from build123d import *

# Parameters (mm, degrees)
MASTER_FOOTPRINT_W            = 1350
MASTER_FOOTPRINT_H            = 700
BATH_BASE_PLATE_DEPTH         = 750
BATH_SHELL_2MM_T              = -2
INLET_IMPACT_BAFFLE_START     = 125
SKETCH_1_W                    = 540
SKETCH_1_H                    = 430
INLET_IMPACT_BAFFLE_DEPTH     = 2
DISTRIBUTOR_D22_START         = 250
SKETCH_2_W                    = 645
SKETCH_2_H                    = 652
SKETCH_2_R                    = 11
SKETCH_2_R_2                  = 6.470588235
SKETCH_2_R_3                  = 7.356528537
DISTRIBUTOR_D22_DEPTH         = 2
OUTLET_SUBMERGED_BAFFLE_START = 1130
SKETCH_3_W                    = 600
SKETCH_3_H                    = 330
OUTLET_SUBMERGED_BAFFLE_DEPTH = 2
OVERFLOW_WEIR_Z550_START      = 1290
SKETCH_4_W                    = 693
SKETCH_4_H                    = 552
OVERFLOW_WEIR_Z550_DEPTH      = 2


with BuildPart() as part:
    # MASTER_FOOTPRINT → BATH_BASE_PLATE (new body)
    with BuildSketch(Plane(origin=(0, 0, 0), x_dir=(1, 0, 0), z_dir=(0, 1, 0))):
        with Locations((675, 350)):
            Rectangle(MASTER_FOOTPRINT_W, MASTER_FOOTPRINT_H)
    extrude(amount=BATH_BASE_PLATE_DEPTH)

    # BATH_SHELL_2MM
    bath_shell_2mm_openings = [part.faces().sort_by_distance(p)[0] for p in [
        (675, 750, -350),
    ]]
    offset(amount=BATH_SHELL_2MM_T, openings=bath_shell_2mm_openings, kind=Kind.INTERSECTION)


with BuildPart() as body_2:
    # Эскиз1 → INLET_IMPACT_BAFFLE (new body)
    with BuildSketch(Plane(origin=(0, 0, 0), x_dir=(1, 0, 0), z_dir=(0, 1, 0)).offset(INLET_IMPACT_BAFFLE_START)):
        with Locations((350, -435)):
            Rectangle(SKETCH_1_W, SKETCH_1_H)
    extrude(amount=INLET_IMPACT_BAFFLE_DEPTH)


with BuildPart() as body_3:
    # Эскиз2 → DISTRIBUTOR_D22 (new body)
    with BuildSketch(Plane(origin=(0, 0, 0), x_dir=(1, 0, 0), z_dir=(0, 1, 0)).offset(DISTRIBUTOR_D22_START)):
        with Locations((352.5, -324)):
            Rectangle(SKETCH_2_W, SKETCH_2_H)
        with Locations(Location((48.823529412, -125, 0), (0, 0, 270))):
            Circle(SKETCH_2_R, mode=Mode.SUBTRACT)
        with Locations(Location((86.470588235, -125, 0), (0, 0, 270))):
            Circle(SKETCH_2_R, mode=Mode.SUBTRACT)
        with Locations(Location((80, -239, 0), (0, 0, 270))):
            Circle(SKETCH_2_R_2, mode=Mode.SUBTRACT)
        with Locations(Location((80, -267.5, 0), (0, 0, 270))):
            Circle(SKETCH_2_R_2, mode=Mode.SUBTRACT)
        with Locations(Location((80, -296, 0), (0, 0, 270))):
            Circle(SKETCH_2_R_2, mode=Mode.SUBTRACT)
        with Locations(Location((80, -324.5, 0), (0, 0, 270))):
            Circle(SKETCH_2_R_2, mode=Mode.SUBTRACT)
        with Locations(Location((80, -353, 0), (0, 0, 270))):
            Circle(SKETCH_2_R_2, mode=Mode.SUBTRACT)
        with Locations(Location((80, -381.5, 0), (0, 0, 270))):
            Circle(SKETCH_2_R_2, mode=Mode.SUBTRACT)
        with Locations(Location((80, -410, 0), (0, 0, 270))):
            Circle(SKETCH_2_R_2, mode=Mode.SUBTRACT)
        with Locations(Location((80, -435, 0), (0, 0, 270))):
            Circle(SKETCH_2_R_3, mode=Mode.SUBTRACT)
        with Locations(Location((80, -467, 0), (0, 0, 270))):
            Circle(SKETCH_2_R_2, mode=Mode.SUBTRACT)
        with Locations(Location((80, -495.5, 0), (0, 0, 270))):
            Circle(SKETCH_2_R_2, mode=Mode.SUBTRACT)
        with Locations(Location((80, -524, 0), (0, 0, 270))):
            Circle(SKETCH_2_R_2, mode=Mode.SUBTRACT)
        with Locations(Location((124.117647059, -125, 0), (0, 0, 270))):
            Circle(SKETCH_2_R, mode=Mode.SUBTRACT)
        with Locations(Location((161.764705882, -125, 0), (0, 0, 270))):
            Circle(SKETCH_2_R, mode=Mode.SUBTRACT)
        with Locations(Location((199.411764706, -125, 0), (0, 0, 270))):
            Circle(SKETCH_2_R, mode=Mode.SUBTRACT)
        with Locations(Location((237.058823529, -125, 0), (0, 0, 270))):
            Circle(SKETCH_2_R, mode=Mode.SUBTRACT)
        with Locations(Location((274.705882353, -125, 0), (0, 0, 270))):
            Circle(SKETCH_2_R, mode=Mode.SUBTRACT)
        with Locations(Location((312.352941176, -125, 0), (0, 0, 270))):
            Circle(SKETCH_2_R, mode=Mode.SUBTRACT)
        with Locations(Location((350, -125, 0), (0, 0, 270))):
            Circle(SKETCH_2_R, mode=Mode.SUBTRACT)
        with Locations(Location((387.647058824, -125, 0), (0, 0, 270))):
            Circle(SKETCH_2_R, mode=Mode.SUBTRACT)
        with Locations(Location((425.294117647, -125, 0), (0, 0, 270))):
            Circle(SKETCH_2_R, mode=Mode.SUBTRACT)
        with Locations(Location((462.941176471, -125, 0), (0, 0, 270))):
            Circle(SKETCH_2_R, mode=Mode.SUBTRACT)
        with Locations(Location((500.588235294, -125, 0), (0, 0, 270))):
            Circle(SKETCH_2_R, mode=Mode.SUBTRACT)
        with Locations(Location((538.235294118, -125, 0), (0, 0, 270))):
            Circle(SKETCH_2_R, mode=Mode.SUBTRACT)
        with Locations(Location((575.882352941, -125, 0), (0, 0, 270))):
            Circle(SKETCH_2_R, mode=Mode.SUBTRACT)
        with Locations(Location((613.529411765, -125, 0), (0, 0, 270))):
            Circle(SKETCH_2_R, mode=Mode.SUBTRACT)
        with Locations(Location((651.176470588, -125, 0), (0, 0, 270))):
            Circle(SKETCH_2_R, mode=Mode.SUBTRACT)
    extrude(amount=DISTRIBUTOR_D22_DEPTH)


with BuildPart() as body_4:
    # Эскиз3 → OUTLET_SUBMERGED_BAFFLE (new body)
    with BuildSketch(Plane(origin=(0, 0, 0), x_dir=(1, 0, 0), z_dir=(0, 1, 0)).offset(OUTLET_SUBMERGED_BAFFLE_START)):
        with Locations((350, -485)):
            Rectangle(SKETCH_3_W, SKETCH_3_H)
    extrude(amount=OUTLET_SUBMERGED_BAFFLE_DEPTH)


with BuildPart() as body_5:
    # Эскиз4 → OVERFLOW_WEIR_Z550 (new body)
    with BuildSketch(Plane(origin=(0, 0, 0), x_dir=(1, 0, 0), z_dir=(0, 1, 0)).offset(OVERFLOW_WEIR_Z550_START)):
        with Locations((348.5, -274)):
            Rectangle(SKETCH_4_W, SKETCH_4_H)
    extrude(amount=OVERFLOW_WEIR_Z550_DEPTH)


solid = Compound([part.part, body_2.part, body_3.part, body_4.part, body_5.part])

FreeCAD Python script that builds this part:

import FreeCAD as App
import Part
import Sketcher


def faces_at(feature, points):
    """Names of the faces that lie closest to the given points."""
    faces = feature.Shape.Faces
    near = lambda p: min(range(len(faces)), key=lambda i: faces[i].distToShape(Part.Vertex(*p))[0])
    return sorted({f"Face{near(p) + 1}" for p in points})

doc = App.newDocument("Part")
body = doc.addObject("PartDesign::Body", "Body")

sketch1 = body.newObject("Sketcher::SketchObject", "Sketch")
sketch1.AttachmentSupport = (doc.getObject("XZ_Plane"), [""])
sketch1.MapMode = "FlatFace"
sketch1.addGeometry([
    Part.LineSegment(App.Vector(0, -700, 0), App.Vector(0, 0, 0)),
    Part.LineSegment(App.Vector(0, 0, 0), App.Vector(1350, 0, 0)),
    Part.LineSegment(App.Vector(1350, 0, 0), App.Vector(1350, -700, 0)),
    Part.LineSegment(App.Vector(1350, -700, 0), App.Vector(0, -700, 0)),
], False)
sketch1.addConstraint([
    Sketcher.Constraint("Coincident", 0, 2, 1, 1),
    Sketcher.Constraint("Coincident", 1, 2, 2, 1),
    Sketcher.Constraint("Coincident", 2, 2, 3, 1),
    Sketcher.Constraint("Coincident", 3, 2, 0, 1),
    Sketcher.Constraint("Vertical", 0),
    Sketcher.Constraint("Horizontal", 1),
    Sketcher.Constraint("Vertical", 2),
    Sketcher.Constraint("Horizontal", 3),
    Sketcher.Constraint("Coincident", 0, 2, -1, 1),
    Sketcher.Constraint("DistanceX", 1, 1, 1, 2, 1350.0),
    Sketcher.Constraint("DistanceY", 0, 1, 0, 2, 700.0),
])
pad1 = body.newObject("PartDesign::Pad", "Pad")
pad1.Profile = sketch1
pad1.Length = 750
pad1.Reversed = True
doc.recompute()

thickness = body.newObject("PartDesign::Thickness", "Thickness")
thickness.Base = (pad1, faces_at(pad1, [(675, 750, -350)]))
thickness.Value = 2
thickness.Reversed = True
thickness.Join = "Intersection"
body2 = doc.addObject("PartDesign::Body", "Body001")

sketch2 = body2.newObject("Sketcher::SketchObject", "Sketch001")
sketch2.AttachmentSupport = (doc.getObject("XZ_Plane001"), [""])
sketch2.MapMode = "FlatFace"
sketch2.AttachmentOffset = App.Placement(App.Vector(0, 0, -125), App.Rotation())
sketch2.addGeometry([
    Part.LineSegment(App.Vector(80, 220, 0), App.Vector(80, 650, 0)),
    Part.LineSegment(App.Vector(80, 650, 0), App.Vector(620, 650, 0)),
    Part.LineSegment(App.Vector(620, 650, 0), App.Vector(620, 220, 0)),
    Part.LineSegment(App.Vector(620, 220, 0), App.Vector(80, 220, 0)),
], False)
sketch2.addConstraint([
    Sketcher.Constraint("Coincident", 0, 2, 1, 1),
    Sketcher.Constraint("Coincident", 1, 2, 2, 1),
    Sketcher.Constraint("Coincident", 2, 2, 3, 1),
    Sketcher.Constraint("Coincident", 3, 2, 0, 1),
    Sketcher.Constraint("Vertical", 0),
    Sketcher.Constraint("Horizontal", 1),
    Sketcher.Constraint("Vertical", 2),
    Sketcher.Constraint("Horizontal", 3),
    Sketcher.Constraint("DistanceX", 1, 1, 1, 2, 540.0),
    Sketcher.Constraint("DistanceY", 0, 1, 0, 2, 430.0),
    Sketcher.Constraint("DistanceX", -1, 1, 0, 2, 80.0),
    Sketcher.Constraint("DistanceY", -1, 1, 0, 2, 650.0),
])
pad2 = body2.newObject("PartDesign::Pad", "Pad001")
pad2.Profile = sketch2
pad2.Length = 2
pad2.Reversed = True
body3 = doc.addObject("PartDesign::Body", "Body002")

sketch3 = body3.newObject("Sketcher::SketchObject", "Sketch002")
sketch3.AttachmentSupport = (doc.getObject("XZ_Plane002"), [""])
sketch3.MapMode = "FlatFace"
sketch3.AttachmentOffset = App.Placement(App.Vector(0, 0, -250), App.Rotation())
sketch3.addGeometry([
    Part.LineSegment(App.Vector(30, -2, 0), App.Vector(30, 650, 0)),
    Part.LineSegment(App.Vector(30, 650, 0), App.Vector(675, 650, 0)),
    Part.LineSegment(App.Vector(675, 650, 0), App.Vector(675, -2, 0)),
    Part.LineSegment(App.Vector(675, -2, 0), App.Vector(30, -2, 0)),
    Part.Circle(App.Vector(80, 524, 0), App.Vector(0, 0, 1), 6),
    Part.Circle(App.Vector(80, 496, 0), App.Vector(0, 0, 1), 6),
    Part.Circle(App.Vector(80, 467, 0), App.Vector(0, 0, 1), 6),
    Part.Circle(App.Vector(80, 435, 0), App.Vector(0, 0, 1), 7),
    Part.Circle(App.Vector(80, 410, 0), App.Vector(0, 0, 1), 6),
    Part.Circle(App.Vector(80, 382, 0), App.Vector(0, 0, 1), 6),
    Part.Circle(App.Vector(80, 353, 0), App.Vector(0, 0, 1), 6),
    Part.Circle(App.Vector(80, 324, 0), App.Vector(0, 0, 1), 6),
    Part.Circle(App.Vector(80, 296, 0), App.Vector(0, 0, 1), 6),
    Part.Circle(App.Vector(80, 268, 0), App.Vector(0, 0, 1), 6),
    Part.Circle(App.Vector(80, 239, 0), App.Vector(0, 0, 1), 6),
    Part.Circle(App.Vector(49, 125, 0), App.Vector(0, 0, 1), 11),
    Part.Circle(App.Vector(86, 125, 0), App.Vector(0, 0, 1), 11),
    Part.Circle(App.Vector(124, 125, 0), App.Vector(0, 0, 1), 11),
    Part.Circle(App.Vector(162, 125, 0), App.Vector(0, 0, 1), 11),
    Part.Circle(App.Vector(199, 125, 0), App.Vector(0, 0, 1), 11),
    Part.Circle(App.Vector(237, 125, 0), App.Vector(0, 0, 1), 11),
    Part.Circle(App.Vector(275, 125, 0), App.Vector(0, 0, 1), 11),
    Part.Circle(App.Vector(312, 125, 0), App.Vector(0, 0, 1), 11),
    Part.Circle(App.Vector(350, 125, 0), App.Vector(0, 0, 1), 11),
    Part.Circle(App.Vector(388, 125, 0), App.Vector(0, 0, 1), 11),
    Part.Circle(App.Vector(425, 125, 0), App.Vector(0, 0, 1), 11),
    Part.Circle(App.Vector(463, 125, 0), App.Vector(0, 0, 1), 11),
    Part.Circle(App.Vector(501, 125, 0), App.Vector(0, 0, 1), 11),
    Part.Circle(App.Vector(538, 125, 0), App.Vector(0, 0, 1), 11),
    Part.Circle(App.Vector(576, 125, 0), App.Vector(0, 0, 1), 11),
    Part.Circle(App.Vector(614, 125, 0), App.Vector(0, 0, 1), 11),
    Part.Circle(App.Vector(651, 125, 0), App.Vector(0, 0, 1), 11),
], False)
sketch3.addConstraint([
    Sketcher.Constraint("Coincident", 0, 2, 1, 1),
    Sketcher.Constraint("Coincident", 1, 2, 2, 1),
    Sketcher.Constraint("Coincident", 2, 2, 3, 1),
    Sketcher.Constraint("Coincident", 3, 2, 0, 1),
    Sketcher.Constraint("Vertical", 0),
    Sketcher.Constraint("Horizontal", 1),
    Sketcher.Constraint("Vertical", 2),
    Sketcher.Constraint("Horizontal", 3),
    Sketcher.Constraint("Equal", 4, 5),
    Sketcher.Constraint("Equal", 5, 6),
    Sketcher.Constraint("Equal", 6, 8),
    Sketcher.Constraint("Equal", 8, 9),
    Sketcher.Constraint("Equal", 9, 10),
    Sketcher.Constraint("Equal", 10, 11),
    Sketcher.Constraint("Equal", 11, 12),
    Sketcher.Constraint("Equal", 12, 13),
    Sketcher.Constraint("Equal", 13, 14),
    Sketcher.Constraint("Equal", 15, 16),
    Sketcher.Constraint("Equal", 16, 17),
    Sketcher.Constraint("Equal", 17, 18),
    Sketcher.Constraint("Equal", 18, 19),
    Sketcher.Constraint("Equal", 19, 20),
    Sketcher.Constraint("Equal", 20, 21),
    Sketcher.Constraint("Equal", 21, 22),
    Sketcher.Constraint("Equal", 22, 23),
    Sketcher.Constraint("Equal", 23, 24),
    Sketcher.Constraint("Equal", 24, 25),
    Sketcher.Constraint("Equal", 25, 26),
    Sketcher.Constraint("Equal", 26, 27),
    Sketcher.Constraint("Equal", 27, 28),
    Sketcher.Constraint("Equal", 28, 29),
    Sketcher.Constraint("Equal", 29, 30),
    Sketcher.Constraint("Equal", 30, 31),
    Sketcher.Constraint("Horizontal", 15, 3, 16, 3),
    Sketcher.Constraint("Horizontal", 16, 3, 17, 3),
    Sketcher.Constraint("Horizontal", 17, 3, 18, 3),
    Sketcher.Constraint("Horizontal", 18, 3, 19, 3),
    Sketcher.Constraint("Horizontal", 19, 3, 20, 3),
    Sketcher.Constraint("Horizontal", 20, 3, 21, 3),
    Sketcher.Constraint("Horizontal", 21, 3, 22, 3),
    Sketcher.Constraint("Horizontal", 22, 3, 23, 3),
    Sketcher.Constraint("Horizontal", 23, 3, 24, 3),
    Sketcher.Constraint("Horizontal", 24, 3, 25, 3),
    Sketcher.Constraint("Horizontal", 25, 3, 26, 3),
    Sketcher.Constraint("Horizontal", 26, 3, 27, 3),
    Sketcher.Constraint("Horizontal", 27, 3, 28, 3),
    Sketcher.Constraint("Horizontal", 28, 3, 29, 3),
    Sketcher.Constraint("Horizontal", 29, 3, 30, 3),
    Sketcher.Constraint("Horizontal", 30, 3, 31, 3),
    Sketcher.Constraint("Vertical", 4, 3, 5, 3),
    Sketcher.Constraint("Vertical", 5, 3, 6, 3),
    Sketcher.Constraint("Vertical", 6, 3, 7, 3),
    Sketcher.Constraint("Vertical", 7, 3, 8, 3),
    Sketcher.Constraint("Vertical", 8, 3, 9, 3),
    Sketcher.Constraint("Vertical", 9, 3, 10, 3),
    Sketcher.Constraint("Vertical", 10, 3, 11, 3),
    Sketcher.Constraint("Vertical", 11, 3, 12, 3),
    Sketcher.Constraint("Vertical", 12, 3, 13, 3),
    Sketcher.Constraint("Vertical", 13, 3, 14, 3),
    Sketcher.Constraint("Diameter", 15, 22.0),
    Sketcher.Constraint("DistanceX", 1, 1, 1, 2, 645.0),
    Sketcher.Constraint("DistanceY", 0, 1, 0, 2, 652.0),
    Sketcher.Constraint("DistanceX", -1, 1, 4, 3, 80.0),
    Sketcher.Constraint("DistanceY", -1, 1, 4, 3, 524.0),
    Sketcher.Constraint("DistanceY", -1, 1, 6, 3, 467.0),
    Sketcher.Constraint("DistanceY", -1, 1, 7, 3, 435.0),
    Sketcher.Constraint("DistanceY", -1, 1, 8, 3, 410.0),
    Sketcher.Constraint("DistanceY", -1, 1, 10, 3, 353.0),
    Sketcher.Constraint("DistanceY", -1, 1, 12, 3, 296.0),
    Sketcher.Constraint("DistanceY", -1, 1, 14, 3, 239.0),
    Sketcher.Constraint("DistanceY", -1, 1, 15, 3, 125.0),
    Sketcher.Constraint("DistanceX", -1, 1, 23, 3, 350.0),
    Sketcher.Constraint("DistanceX", -1, 1, 0, 2, 30.0),
    Sketcher.Constraint("DistanceY", -1, 1, 0, 2, 650.0),
    Sketcher.Constraint("DistanceY", 9, 3, 5, 3, 114.0),
    Sketcher.Constraint("DistanceY", 11, 3, 9, 3, 57.0),
    Sketcher.Constraint("DistanceY", 13, 3, 11, 3, 57.0),
    Sketcher.Constraint("DistanceY", -1, 1, 5, 3, 495.5),
    Sketcher.Constraint("Diameter", 4, 12.941176),
    Sketcher.Constraint("Diameter", 7, 14.713057),
    Sketcher.Constraint("DistanceX", -1, 1, 15, 3, 48.823529),
    Sketcher.Constraint("DistanceX", -1, 1, 16, 3, 86.470588),
    Sketcher.Constraint("DistanceX", -1, 1, 22, 3, 312.352941),
    Sketcher.Constraint("DistanceX", -1, 1, 24, 3, 387.647059),
    Sketcher.Constraint("DistanceX", -1, 1, 30, 3, 613.529412),
    Sketcher.Constraint("DistanceX", -1, 1, 31, 3, 651.176471),
    Sketcher.Constraint("DistanceX", 16, 3, 17, 3, 37.647059),
    Sketcher.Constraint("DistanceX", 17, 3, 18, 3, 37.647059),
    Sketcher.Constraint("DistanceX", 18, 3, 19, 3, 37.647059),
    Sketcher.Constraint("DistanceX", 19, 3, 20, 3, 37.647059),
    Sketcher.Constraint("DistanceX", 20, 3, 21, 3, 37.647059),
    Sketcher.Constraint("DistanceX", 24, 3, 25, 3, 37.647059),
    Sketcher.Constraint("DistanceX", 25, 3, 26, 3, 37.647059),
    Sketcher.Constraint("DistanceX", 26, 3, 27, 3, 37.647059),
    Sketcher.Constraint("DistanceX", 27, 3, 28, 3, 37.647059),
    Sketcher.Constraint("DistanceX", 28, 3, 29, 3, 37.647059),
])
pad3 = body3.newObject("PartDesign::Pad", "Pad002")
pad3.Profile = sketch3
pad3.Length = 2
pad3.Reversed = True
body4 = doc.addObject("PartDesign::Body", "Body003")

sketch4 = body4.newObject("Sketcher::SketchObject", "Sketch003")
sketch4.AttachmentSupport = (doc.getObject("XZ_Plane003"), [""])
sketch4.MapMode = "FlatFace"
sketch4.AttachmentOffset = App.Placement(App.Vector(0, 0, -1130), App.Rotation())
sketch4.addGeometry([
    Part.LineSegment(App.Vector(50, 320, 0), App.Vector(50, 650, 0)),
    Part.LineSegment(App.Vector(50, 650, 0), App.Vector(650, 650, 0)),
    Part.LineSegment(App.Vector(650, 650, 0), App.Vector(650, 320, 0)),
    Part.LineSegment(App.Vector(650, 320, 0), App.Vector(50, 320, 0)),
], False)
sketch4.addConstraint([
    Sketcher.Constraint("Coincident", 0, 2, 1, 1),
    Sketcher.Constraint("Coincident", 1, 2, 2, 1),
    Sketcher.Constraint("Coincident", 2, 2, 3, 1),
    Sketcher.Constraint("Coincident", 3, 2, 0, 1),
    Sketcher.Constraint("Vertical", 0),
    Sketcher.Constraint("Horizontal", 1),
    Sketcher.Constraint("Vertical", 2),
    Sketcher.Constraint("Horizontal", 3),
    Sketcher.Constraint("DistanceX", 1, 1, 1, 2, 600.0),
    Sketcher.Constraint("DistanceY", 0, 1, 0, 2, 330.0),
    Sketcher.Constraint("DistanceX", -1, 1, 0, 2, 50.0),
    Sketcher.Constraint("DistanceY", -1, 1, 0, 2, 650.0),
])
pad4 = body4.newObject("PartDesign::Pad", "Pad003")
pad4.Profile = sketch4
pad4.Length = 2
pad4.Reversed = True
body5 = doc.addObject("PartDesign::Body", "Body004")

sketch5 = body5.newObject("Sketcher::SketchObject", "Sketch004")
sketch5.AttachmentSupport = (doc.getObject("XZ_Plane004"), [""])
sketch5.MapMode = "FlatFace"
sketch5.AttachmentOffset = App.Placement(App.Vector(0, 0, -1290), App.Rotation())
sketch5.addGeometry([
    Part.LineSegment(App.Vector(2, -2, 0), App.Vector(2, 550, 0)),
    Part.LineSegment(App.Vector(2, 550, 0), App.Vector(695, 550, 0)),
    Part.LineSegment(App.Vector(695, 550, 0), App.Vector(695, -2, 0)),
    Part.LineSegment(App.Vector(695, -2, 0), App.Vector(2, -2, 0)),
], False)
sketch5.addConstraint([
    Sketcher.Constraint("Coincident", 0, 2, 1, 1),
    Sketcher.Constraint("Coincident", 1, 2, 2, 1),
    Sketcher.Constraint("Coincident", 2, 2, 3, 1),
    Sketcher.Constraint("Coincident", 3, 2, 0, 1),
    Sketcher.Constraint("Vertical", 0),
    Sketcher.Constraint("Horizontal", 1),
    Sketcher.Constraint("Vertical", 2),
    Sketcher.Constraint("Horizontal", 3),
    Sketcher.Constraint("DistanceX", 1, 1, 1, 2, 693.0),
    Sketcher.Constraint("DistanceY", 0, 1, 0, 2, 552.0),
    Sketcher.Constraint("DistanceX", -1, 1, 0, 2, 2.0),
    Sketcher.Constraint("DistanceY", -1, 1, 0, 2, 550.0),
])
pad5 = body5.newObject("PartDesign::Pad", "Pad004")
pad5.Profile = sketch5
pad5.Length = 2
pad5.Reversed = True

doc.recompute()
